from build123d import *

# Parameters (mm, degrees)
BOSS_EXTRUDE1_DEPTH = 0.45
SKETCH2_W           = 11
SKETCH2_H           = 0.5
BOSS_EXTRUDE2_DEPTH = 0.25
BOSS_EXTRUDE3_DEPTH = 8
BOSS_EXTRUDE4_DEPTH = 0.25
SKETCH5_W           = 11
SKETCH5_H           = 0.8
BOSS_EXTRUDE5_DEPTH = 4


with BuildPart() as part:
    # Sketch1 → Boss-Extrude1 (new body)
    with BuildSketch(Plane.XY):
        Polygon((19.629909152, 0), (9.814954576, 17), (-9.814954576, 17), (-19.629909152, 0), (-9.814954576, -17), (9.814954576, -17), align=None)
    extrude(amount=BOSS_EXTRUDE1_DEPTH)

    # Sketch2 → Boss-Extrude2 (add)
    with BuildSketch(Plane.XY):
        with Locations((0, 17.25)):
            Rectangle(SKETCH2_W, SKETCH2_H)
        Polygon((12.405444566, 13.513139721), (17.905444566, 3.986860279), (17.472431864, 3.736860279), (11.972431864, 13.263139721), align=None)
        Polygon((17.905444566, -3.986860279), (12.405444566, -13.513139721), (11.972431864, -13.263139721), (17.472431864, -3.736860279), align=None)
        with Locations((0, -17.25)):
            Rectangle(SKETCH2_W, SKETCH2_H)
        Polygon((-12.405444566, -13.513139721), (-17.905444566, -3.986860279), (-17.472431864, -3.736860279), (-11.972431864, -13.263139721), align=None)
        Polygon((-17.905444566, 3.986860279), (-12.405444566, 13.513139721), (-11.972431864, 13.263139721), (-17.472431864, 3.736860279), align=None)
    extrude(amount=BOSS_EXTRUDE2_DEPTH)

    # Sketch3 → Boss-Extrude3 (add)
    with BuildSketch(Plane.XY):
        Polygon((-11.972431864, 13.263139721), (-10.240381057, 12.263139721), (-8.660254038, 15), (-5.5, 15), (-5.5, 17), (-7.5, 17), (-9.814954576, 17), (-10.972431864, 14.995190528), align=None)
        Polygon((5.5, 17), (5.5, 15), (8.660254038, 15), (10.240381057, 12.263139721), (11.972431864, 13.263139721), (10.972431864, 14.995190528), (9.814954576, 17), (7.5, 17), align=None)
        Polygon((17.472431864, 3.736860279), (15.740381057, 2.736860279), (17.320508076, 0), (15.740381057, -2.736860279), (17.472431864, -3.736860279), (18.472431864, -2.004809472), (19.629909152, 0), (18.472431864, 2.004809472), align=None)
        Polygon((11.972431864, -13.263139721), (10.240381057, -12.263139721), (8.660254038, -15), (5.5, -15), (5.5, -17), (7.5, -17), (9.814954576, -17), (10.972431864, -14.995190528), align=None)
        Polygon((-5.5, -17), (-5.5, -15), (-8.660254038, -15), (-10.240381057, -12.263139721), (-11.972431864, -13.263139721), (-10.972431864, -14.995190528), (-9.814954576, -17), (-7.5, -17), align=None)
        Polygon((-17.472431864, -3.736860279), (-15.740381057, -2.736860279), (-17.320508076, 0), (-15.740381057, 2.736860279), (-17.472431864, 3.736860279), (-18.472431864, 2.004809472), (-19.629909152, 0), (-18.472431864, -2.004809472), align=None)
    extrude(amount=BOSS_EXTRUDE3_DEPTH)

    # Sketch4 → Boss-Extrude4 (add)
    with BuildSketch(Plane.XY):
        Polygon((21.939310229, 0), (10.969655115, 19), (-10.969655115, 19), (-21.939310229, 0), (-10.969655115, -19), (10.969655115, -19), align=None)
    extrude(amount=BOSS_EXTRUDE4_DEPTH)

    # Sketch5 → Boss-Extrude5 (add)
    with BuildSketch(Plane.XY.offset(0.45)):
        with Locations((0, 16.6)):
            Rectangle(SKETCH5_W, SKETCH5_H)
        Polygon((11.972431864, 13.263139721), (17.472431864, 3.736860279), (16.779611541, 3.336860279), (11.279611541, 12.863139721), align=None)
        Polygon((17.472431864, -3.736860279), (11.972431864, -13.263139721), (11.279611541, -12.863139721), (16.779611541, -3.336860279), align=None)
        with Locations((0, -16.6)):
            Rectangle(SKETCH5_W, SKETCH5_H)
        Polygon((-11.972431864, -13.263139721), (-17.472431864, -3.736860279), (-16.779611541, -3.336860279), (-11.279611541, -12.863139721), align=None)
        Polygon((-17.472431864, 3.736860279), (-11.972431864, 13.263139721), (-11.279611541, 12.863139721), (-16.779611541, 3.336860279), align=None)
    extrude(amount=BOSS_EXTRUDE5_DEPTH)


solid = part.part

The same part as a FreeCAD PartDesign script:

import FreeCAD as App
import Part
import Sketcher
Q = App.Units.Quantity


def add_polygon(sketch, points):
    """Adds a closed chain of lines whose ends are joined by coincident constraints."""
    first, n = sketch.GeometryCount, len(points)
    for a, b in zip(points, points[1:] + points[:1]):
        sketch.addGeometry(Part.LineSegment(App.Vector(*a, 0), App.Vector(*b, 0)), False)
    for i in range(n):
        sketch.addConstraint(Sketcher.Constraint("Coincident", first + i, 2, first + (i + 1) % n, 1))

doc = App.newDocument("Part")
body = doc.addObject("PartDesign::Body", "Body")

sketch1 = doc.addObject("Sketcher::SketchObject", "Sketch")
body.addObject(sketch1)
sketch1.AttachmentSupport = (doc.XY_Plane, [""])
sketch1.MapMode = "FlatFace"
add_polygon(sketch1, [(19.629909, 0), (9.814955, 17), (-9.814955, 17), (-19.629909, 0), (-9.814955, -17), (9.814955, -17)])
sketch1.addConstraint([
    Sketcher.Constraint("Horizontal", 1),
    Sketcher.Constraint("Horizontal", 4),
    Sketcher.Constraint("Symmetric", 0, 2, 3, 2, -1, 1),
    Sketcher.Constraint("Symmetric", 2, 2, 5, 2, -1, 1),
    Sketcher.Constraint("PointOnObject", 2, 2, -1),
    Sketcher.Constraint("Parallel", 2, 5),
    Sketcher.Constraint("Vertical", 1, 2, 3, 2),
    Sketcher.Constraint("Angle", 0, Q("120 deg")),
    Sketcher.Constraint("DistanceY", -1, 1, 0, 2, Q("17 mm")),
    Sketcher.Constraint("DistanceX", 1, 2, 1, 1, Q("19.629909 mm")),
])
pad1 = doc.addObject("PartDesign::Pad", "Pad")
body.addObject(pad1)
pad1.Profile = sketch1
pad1.Length = 0.45

sketch2 = doc.addObject("Sketcher::SketchObject", "Sketch001")
body.addObject(sketch2)
sketch2.AttachmentSupport = (doc.XY_Plane, [""])
sketch2.MapMode = "FlatFace"
add_polygon(sketch2, [(-5.5, 17.5), (-5.5, 17), (5.5, 17), (5.5, 17.5)])
add_polygon(sketch2, [(17.905445, 3.98686), (12.405445, 13.51314), (11.972432, 13.26314), (17.472432, 3.73686)])
add_polygon(sketch2, [(12.405445, -13.51314), (17.905445, -3.98686), (17.472432, -3.73686), (11.972432, -13.26314)])
add_polygon(sketch2, [(-5.5, -17), (-5.5, -17.5), (5.5, -17.5), (5.5, -17)])
add_polygon(sketch2, [(-17.905445, -3.98686), (-12.405445, -13.51314), (-11.972432, -13.26314), (-17.472432, -3.73686)])
add_polygon(sketch2, [(-12.405445, 13.51314), (-17.905445, 3.98686), (-17.472432, 3.73686), (-11.972432, 13.26314)])
sketch2.addConstraint([
    Sketcher.Constraint("Vertical", 0),
    Sketcher.Constraint("Horizontal", 1),
    Sketcher.Constraint("Vertical", 2),
    Sketcher.Constraint("Horizontal", 3),
    Sketcher.Constraint("Vertical", 12),
    Sketcher.Constraint("Horizontal", 13),
    Sketcher.Constraint("Vertical", 14),
    Sketcher.Constraint("Horizontal", 15),
    Sketcher.Constraint("Symmetric", 2, 2, 12, 2, -1, 1),
    Sketcher.Constraint("Symmetric", 0, 2, 14, 2, -1, 1),
    Sketcher.Constraint("Symmetric", 4, 2, 16, 2, -1, 1),
    Sketcher.Constraint("Symmetric", 5, 2, 17, 2, -1, 1),
    Sketcher.Constraint("Symmetric", 6, 2, 18, 2, -1, 1),
    Sketcher.Constraint("Symmetric", 7, 2, 19, 2, -1, 1),
    Sketcher.Constraint("Symmetric", 8, 2, 20, 2, -1, 1),
    Sketcher.Constraint("Symmetric", 9, 2, 21, 2, -1, 1),
    Sketcher.Constraint("Symmetric", 10, 2, 22, 2, -1, 1),
    Sketcher.Constraint("Symmetric", 11, 2, 23, 2, -1, 1),
    Sketcher.Constraint("Symmetric", 11, 2, 16, 2, -2),
    Sketcher.Constraint("Symmetric", 10, 2, 17, 2, -2),
    Sketcher.Constraint("Symmetric", 9, 2, 18, 2, -2),
    Sketcher.Constraint("Symmetric", 8, 2, 19, 2, -2),
    Sketcher.Constraint("Perpendicular", 4, 5),
    Sketcher.Constraint("Perpendicular", 5, 6),
    Sketcher.Constraint("Perpendicular", 6, 7),
    Sketcher.Constraint("Vertical", 3, 2, 12, 2),
    Sketcher.Constraint("DistanceX", 1, 1, 1, 2, Q("11 mm")),
    Sketcher.Constraint("Angle", 4, Q("120 deg")),
    Sketcher.Constraint("Distance", 4, Q("11 mm")),
    Sketcher.Constraint("DistanceY", 0, 2, 0, 1, Q("0.5 mm")),
    Sketcher.Constraint("DistanceY", -1, 1, 0, 2, Q("17 mm")),
    Sketcher.Constraint("DistanceY", 9, 2, 5, 2, Q("17 mm")),
    Sketcher.Constraint("Distance", 5, Q("0.5 mm")),
    Sketcher.Constraint("DistanceX", -1, 1, 5, 2, Q("11.972432 mm")),
])
pad2 = doc.addObject("PartDesign::Pad", "Pad001")
body.addObject(pad2)
pad2.Profile = sketch2
pad2.Length = 0.25

sketch3 = doc.addObject("Sketcher::SketchObject", "Sketch002")
body.addObject(sketch3)
sketch3.AttachmentSupport = (doc.XY_Plane, [""])
sketch3.MapMode = "FlatFace"
add_polygon(sketch3, [(-11.972432, 13.26314), (-10.240381, 12.26314), (-8.660254, 15), (-5.5, 15), (-5.5, 17), (-9.814955, 17), (-10.972432, 14.995191)])
add_polygon(sketch3, [(5.5, 17), (5.5, 15), (8.660254, 15), (10.240381, 12.26314), (11.972432, 13.26314), (10.972432, 14.995191), (9.814955, 17)])
add_polygon(sketch3, [(17.472432, 3.73686), (15.740381, 2.73686), (17.320508, 0), (15.740381, -2.73686), (17.472432, -3.73686), (18.472432, -2.004809), (19.629909, 0), (18.472432, 2.004809)])
add_polygon(sketch3, [(11.972432, -13.26314), (10.240381, -12.26314), (8.660254, -15), (5.5, -15), (5.5, -17), (9.814955, -17), (10.972432, -14.995191)])
add_polygon(sketch3, [(-5.5, -17), (-5.5, -15), (-8.660254, -15), (-10.240381, -12.26314), (-11.972432, -13.26314), (-10.972432, -14.995191), (-9.814955, -17)])
add_polygon(sketch3, [(-17.472432, -3.73686), (-15.740381, -2.73686), (-17.320508, 0), (-15.740381, 2.73686), (-17.472432, 3.73686), (-18.472432, 2.004809), (-19.629909, 0), (-18.472432, -2.004809)])
sketch3.addConstraint([
    Sketcher.Constraint("Horizontal", 2),
    Sketcher.Constraint("Vertical", 3),
    Sketcher.Constraint("Horizontal", 4),
    Sketcher.Constraint("Vertical", 7),
    Sketcher.Constraint("Horizontal", 8),
    Sketcher.Constraint("Horizontal", 13),
    Sketcher.Constraint("Horizontal", 24),
    Sketcher.Constraint("Vertical", 25),
    Sketcher.Constraint("Horizontal", 26),
    Sketcher.Constraint("Vertical", 29),
    Sketcher.Constraint("Horizontal", 30),
    Sketcher.Constraint("Horizontal", 35),
    Sketcher.Constraint("Symmetric", 0, 2, 22, 2, -1, 1),
    Sketcher.Constraint("Symmetric", 1, 2, 23, 2, -1, 1),
    Sketcher.Constraint("Symmetric", 3, 2, 25, 2, -1, 1),
    Sketcher.Constraint("Symmetric", 5, 2, 27, 2, -1, 1),
    Sketcher.Constraint("Symmetric", 6, 2, 28, 2, -1, 1),
    Sketcher.Constraint("Symmetric", 7, 2, 29, 2, -1, 1),
    Sketcher.Constraint("Symmetric", 9, 2, 31, 2, -1, 1),
    Sketcher.Constraint("Symmetric", 10, 2, 32, 2, -1, 1),
    Sketcher.Constraint("Symmetric", 11, 2, 33, 2, -1, 1),
    Sketcher.Constraint("Symmetric", 12, 2, 34, 2, -1, 1),
    Sketcher.Constraint("Symmetric", 14, 2, 36, 2, -1, 1),
    Sketcher.Constraint("Symmetric", 15, 2, 37, 2, -1, 1),
    Sketcher.Constraint("Symmetric", 16, 2, 38, 2, -1, 1),
    Sketcher.Constraint("Symmetric", 17, 2, 39, 2, -1, 1),
    Sketcher.Constraint("Symmetric", 18, 2, 40, 2, -1, 1),
    Sketcher.Constraint("Symmetric", 19, 2, 41, 2, -1, 1),
    Sketcher.Constraint("Symmetric", 20, 2, 42, 2, -1, 1),
    Sketcher.Constraint("Symmetric", 21, 2, 43, 2, -1, 1),
    Sketcher.Constraint("Symmetric", 2, 2, 7, 2, -2),
    Sketcher.Constraint("Symmetric", 0, 2, 9, 2, -2),
    Sketcher.Constraint("Symmetric", 6, 2, 10, 2, -2),
    Sketcher.Constraint("Symmetric", 5, 2, 11, 2, -2),
    Sketcher.Constraint("Symmetric", 4, 2, 12, 2, -2),
    Sketcher.Constraint("Symmetric", 16, 2, 36, 2, -2),
    Sketcher.Constraint("Symmetric", 21, 2, 39, 2, -2),
    Sketcher.Constraint("Symmetric", 20, 2, 40, 2, -2),
    Sketcher.Constraint("PointOnObject", 15, 2, -1),
    Sketcher.Constraint("PointOnObject", 19, 2, -1),
    Sketcher.Constraint("Perpendicular", 0, 1),
    Sketcher.Constraint("Parallel", 1, 5),
    Sketcher.Constraint("Parallel", 5, 6),
    Sketcher.Constraint("Perpendicular", 9, 10),
    Sketcher.Constraint("Perpendicular", 12, 14),
    Sketcher.Constraint("Perpendicular", 14, 15),
    Sketcher.Constraint("Perpendicular", 17, 18),
    Sketcher.Constraint("Parallel", 18, 19),
    Sketcher.Constraint("Parallel", 23, 27),
    Sketcher.Constraint("Parallel", 21, 31),
    Sketcher.Constraint("Equal", 0, 6),
    Sketcher.Constraint("Equal", 11, 14),
    Sketcher.Constraint("Equal", 9, 15),
    Sketcher.Constraint("Equal", 17, 18),
    Sketcher.Constraint("Equal", 12, 19),
    Sketcher.Constraint("DistanceY", 3, 1, 3, 2, Q("2 mm")),
    Sketcher.Constraint("Angle", 0, Q("-30 deg")),
    Sketcher.Constraint("DistanceY", -1, 1, 1, 2, Q("15 mm")),
    Sketcher.Constraint("DistanceX", 2, 2, 7, 2, Q("11 mm")),
    Sketcher.Constraint("DistanceX", 9, 2, 14, 2, Q("5.5 mm")),
    Sketcher.Constraint("DistanceX", 2, 1, 2, 2, Q("3.160254 mm")),
    Sketcher.Constraint("DistanceX", 0, 2, -1, 1, Q("10.240381 mm")),
])
pad3 = doc.addObject("PartDesign::Pad", "Pad002")
body.addObject(pad3)
pad3.Profile = sketch3
pad3.Length = 8

sketch4 = doc.addObject("Sketcher::SketchObject", "Sketch003")
body.addObject(sketch4)
sketch4.AttachmentSupport = (doc.XY_Plane, [""])
sketch4.MapMode = "FlatFace"
add_polygon(sketch4, [(21.93931, 0), (10.969655, 19), (-10.969655, 19), (-21.93931, 0), (-10.969655, -19), (10.969655, -19)])
sketch4.addConstraint([
    Sketcher.Constraint("Horizontal", 1),
    Sketcher.Constraint("Horizontal", 4),
    Sketcher.Constraint("Symmetric", 0, 2, 3, 2, -1, 1),
    Sketcher.Constraint("Symmetric", 2, 2, 5, 2, -1, 1),
    Sketcher.Constraint("PointOnObject", 2, 2, -1),
    Sketcher.Constraint("Parallel", 2, 5),
    Sketcher.Constraint("Vertical", 1, 2, 3, 2),
    Sketcher.Constraint("Angle", 0, Q("120 deg")),
    Sketcher.Constraint("DistanceY", -1, 1, 0, 2, Q("19 mm")),
    Sketcher.Constraint("DistanceX", 1, 2, 1, 1, Q("21.93931 mm")),
])
pad4 = doc.addObject("PartDesign::Pad", "Pad003")
body.addObject(pad4)
pad4.Profile = sketch4
pad4.Length = 0.25

sketch5 = doc.addObject("Sketcher::SketchObject", "Sketch004")
body.addObject(sketch5)
sketch5.AttachmentSupport = (doc.XY_Plane, [""])
sketch5.MapMode = "FlatFace"
sketch5.AttachmentOffset = App.Placement(App.Vector(0, 0, 0.45), App.Rotation())
add_polygon(sketch5, [(-5.5, 17), (-5.5, 16.2), (5.5, 16.2), (5.5, 17)])
add_polygon(sketch5, [(17.472432, 3.73686), (11.972432, 13.26314), (11.279612, 12.86314), (16.779612, 3.33686)])
add_polygon(sketch5, [(11.972432, -13.26314), (17.472432, -3.73686), (16.779612, -3.33686), (11.279612, -12.86314)])
add_polygon(sketch5, [(-5.5, -16.2), (-5.5, -17), (5.5, -17), (5.5, -16.2)])
add_polygon(sketch5, [(-17.472432, -3.73686), (-11.972432, -13.26314), (-11.279612, -12.86314), (-16.779612, -3.33686)])
add_polygon(sketch5, [(-11.972432, 13.26314), (-17.472432, 3.73686), (-16.779612, 3.33686), (-11.279612, 12.86314)])
sketch5.addConstraint([
    Sketcher.Constraint("Vertical", 0),
    Sketcher.Constraint("Horizontal", 1),
    Sketcher.Constraint("Vertical", 2),
    Sketcher.Constraint("Horizontal", 3),
    Sketcher.Constraint("Vertical", 12),
    Sketcher.Constraint("Horizontal", 13),
    Sketcher.Constraint("Vertical", 14),
    Sketcher.Constraint("Horizontal", 15),
    Sketcher.Constraint("Symmetric", 2, 2, 12, 2, -1, 1),
    Sketcher.Constraint("Symmetric", 0, 2, 14, 2, -1, 1),
    Sketcher.Constraint("Symmetric", 4, 2, 16, 2, -1, 1),
    Sketcher.Constraint("Symmetric", 5, 2, 17, 2, -1, 1),
    Sketcher.Constraint("Symmetric", 6, 2, 18, 2, -1, 1),
    Sketcher.Constraint("Symmetric", 7, 2, 19, 2, -1, 1),
    Sketcher.Constraint("Symmetric", 8, 2, 20, 2, -1, 1),
    Sketcher.Constraint("Symmetric", 9, 2, 21, 2, -1, 1),
    Sketcher.Constraint("Symmetric", 10, 2, 22, 2, -1, 1),
    Sketcher.Constraint("Symmetric", 11, 2, 23, 2, -1, 1),
    Sketcher.Constraint("Symmetric", 11, 2, 16, 2, -2),
    Sketcher.Constraint("Symmetric", 10, 2, 17, 2, -2),
    Sketcher.Constraint("Symmetric", 9, 2, 18, 2, -2),
    Sketcher.Constraint("Symmetric", 8, 2, 19, 2, -2),
    Sketcher.Constraint("Perpendicular", 4, 5),
    Sketcher.Constraint("Perpendicular", 5, 6),
    Sketcher.Constraint("Perpendicular", 6, 7),
    Sketcher.Constraint("Vertical", 3, 2, 12, 2),
    Sketcher.Constraint("DistanceX", 1, 1, 1, 2, Q("11 mm")),
    Sketcher.Constraint("Angle", 4, Q("120 deg")),
    Sketcher.Constraint("Distance", 4, Q("11 mm")),
    Sketcher.Constraint("DistanceY", 0, 2, 0, 1, Q("0.8 mm")),
    Sketcher.Constraint("DistanceY", -1, 1, 2, 2, Q("17 mm")),
    Sketcher.Constraint("DistanceY", 8, 2, 4, 2, Q("17 mm")),
    Sketcher.Constraint("Distance", 5, Q("0.8 mm")),
    Sketcher.Constraint("DistanceX", -1, 1, 4, 2, Q("11.972432 mm")),
])
pad5 = doc.addObject("PartDesign::Pad", "Pad004")
body.addObject(pad5)
pad5.Profile = sketch5
pad5.Length = 4

doc.recompute()
